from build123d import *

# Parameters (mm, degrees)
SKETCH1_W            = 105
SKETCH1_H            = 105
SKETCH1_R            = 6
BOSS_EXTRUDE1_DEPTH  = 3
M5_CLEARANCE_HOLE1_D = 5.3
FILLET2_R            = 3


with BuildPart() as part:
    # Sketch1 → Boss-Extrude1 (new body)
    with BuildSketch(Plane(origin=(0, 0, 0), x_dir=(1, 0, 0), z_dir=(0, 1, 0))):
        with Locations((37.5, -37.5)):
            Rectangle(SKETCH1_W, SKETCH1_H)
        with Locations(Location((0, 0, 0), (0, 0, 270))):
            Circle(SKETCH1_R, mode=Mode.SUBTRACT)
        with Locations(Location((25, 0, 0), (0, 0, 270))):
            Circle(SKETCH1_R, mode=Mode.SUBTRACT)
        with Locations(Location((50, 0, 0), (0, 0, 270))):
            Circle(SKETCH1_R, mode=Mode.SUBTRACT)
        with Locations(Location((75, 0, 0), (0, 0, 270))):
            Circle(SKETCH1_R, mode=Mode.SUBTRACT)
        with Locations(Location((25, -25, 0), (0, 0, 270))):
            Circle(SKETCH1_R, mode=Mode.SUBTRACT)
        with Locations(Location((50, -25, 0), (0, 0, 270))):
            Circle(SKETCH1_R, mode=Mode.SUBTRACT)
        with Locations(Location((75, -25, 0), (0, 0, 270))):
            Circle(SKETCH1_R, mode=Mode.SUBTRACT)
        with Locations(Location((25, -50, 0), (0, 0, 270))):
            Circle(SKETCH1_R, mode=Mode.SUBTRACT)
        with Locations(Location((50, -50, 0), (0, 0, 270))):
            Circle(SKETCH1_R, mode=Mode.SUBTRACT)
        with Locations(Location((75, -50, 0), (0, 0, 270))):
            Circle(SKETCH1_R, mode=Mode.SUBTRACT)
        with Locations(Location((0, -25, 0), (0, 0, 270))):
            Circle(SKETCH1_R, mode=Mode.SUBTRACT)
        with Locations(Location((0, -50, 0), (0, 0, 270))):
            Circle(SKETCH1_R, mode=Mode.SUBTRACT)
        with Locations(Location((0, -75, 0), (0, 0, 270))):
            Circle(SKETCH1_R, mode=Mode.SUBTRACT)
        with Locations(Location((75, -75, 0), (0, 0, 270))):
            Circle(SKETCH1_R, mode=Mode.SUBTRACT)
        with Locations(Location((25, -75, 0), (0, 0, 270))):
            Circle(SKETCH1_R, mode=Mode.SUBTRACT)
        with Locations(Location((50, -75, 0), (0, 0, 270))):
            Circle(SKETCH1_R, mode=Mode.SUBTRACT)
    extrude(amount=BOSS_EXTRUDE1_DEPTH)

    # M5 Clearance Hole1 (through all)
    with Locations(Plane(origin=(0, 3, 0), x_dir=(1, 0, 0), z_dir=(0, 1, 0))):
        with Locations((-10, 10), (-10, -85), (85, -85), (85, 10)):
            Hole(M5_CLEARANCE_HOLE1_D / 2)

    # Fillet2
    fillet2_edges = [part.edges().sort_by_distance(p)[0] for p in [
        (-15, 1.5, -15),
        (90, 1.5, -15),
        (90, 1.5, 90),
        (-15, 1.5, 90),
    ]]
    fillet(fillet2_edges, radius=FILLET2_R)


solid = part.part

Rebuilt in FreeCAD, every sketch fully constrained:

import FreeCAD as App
import Part
import Sketcher

V = App.Vector


def edges_at(feature, points):
    """Names of the edges that pass closest to the given points."""
    edges = feature.Shape.Edges
    near = lambda p: min(range(len(edges)), key=lambda i: edges[i].distToShape(Part.Vertex(*p))[0])
    return sorted({f"Edge{near(p) + 1}" for p in points})


def add_polygon(sketch, points):
    """Adds a closed chain of lines whose ends are joined by coincident constraints."""
    first, n = sketch.GeometryCount, len(points)
    for a, b in zip(points, points[1:] + points[:1]):
        sketch.addGeometry(Part.LineSegment(App.Vector(*a, 0), App.Vector(*b, 0)), False)
    for i in range(n):
        sketch.addConstraint(Sketcher.Constraint("Coincident", first + i, 2, first + (i + 1) % n, 1))

doc = App.newDocument("Part")
body = doc.addObject("PartDesign::Body", "Body")

# Sketch on XZ plane
sketch1 = body.newObject("Sketcher::SketchObject", "Sketch")
sketch1.AttachmentSupport = (doc.getObject("XZ_Plane"), [""])
sketch1.MapMode = "FlatFace"
add_polygon(sketch1, [(-15, -15), (-15, 90), (90, 90), (90, -15)])  # lines 0-3
sketch1.addGeometry(Part.Circle(V(0, 75, 0), V(0, 0, 1), 6), False)  # 4
sketch1.addGeometry(Part.Circle(V(25, 75, 0), V(0, 0, 1), 6), False)  # 5
sketch1.addGeometry(Part.Circle(V(0, 50, 0), V(0, 0, 1), 6), False)  # 6
sketch1.addGeometry(Part.Circle(V(25, 50, 0), V(0, 0, 1), 6), False)  # 7
sketch1.addGeometry(Part.Circle(V(50, 75, 0), V(0, 0, 1), 6), False)  # 8
sketch1.addGeometry(Part.Circle(V(75, 75, 0), V(0, 0, 1), 6), False)  # 9
sketch1.addGeometry(Part.Circle(V(50, 50, 0), V(0, 0, 1), 6), False)  # 10
sketch1.addGeometry(Part.Circle(V(75, 50, 0), V(0, 0, 1), 6), False)  # 11
sketch1.addGeometry(Part.Circle(V(0, 25, 0), V(0, 0, 1), 6), False)  # 12
sketch1.addGeometry(Part.Circle(V(25, 25, 0), V(0, 0, 1), 6), False)  # 13
sketch1.addGeometry(Part.Circle(V(0, 0, 0), V(0, 0, 1), 6), False)  # 14
sketch1.addGeometry(Part.Circle(V(25, 0, 0), V(0, 0, 1), 6), False)  # 15
sketch1.addGeometry(Part.Circle(V(50, 25, 0), V(0, 0, 1), 6), False)  # 16
sketch1.addGeometry(Part.Circle(V(75, 25, 0), V(0, 0, 1), 6), False)  # 17
sketch1.addGeometry(Part.Circle(V(50, 0, 0), V(0, 0, 1), 6), False)  # 18
sketch1.addGeometry(Part.Circle(V(75, 0, 0), V(0, 0, 1), 6), False)  # 19
sketch1.addConstraint([
    Sketcher.Constraint("Vertical", 0),
    Sketcher.Constraint("Horizontal", 1),
    Sketcher.Constraint("Vertical", 2),
    Sketcher.Constraint("Horizontal", 3),
    Sketcher.Constraint("Coincident", 14, 3, -1, 1),
    Sketcher.Constraint("Equal", 4, 5),
    Sketcher.Constraint("Equal", 5, 6),
    Sketcher.Constraint("Equal", 6, 7),
    Sketcher.Constraint("Equal", 7, 8),
    Sketcher.Constraint("Equal", 8, 9),
    Sketcher.Constraint("Equal", 9, 10),
    Sketcher.Constraint("Equal", 10, 11),
    Sketcher.Constraint("Equal", 11, 12),
    Sketcher.Constraint("Equal", 12, 13),
    Sketcher.Constraint("Equal", 13, 14),
    Sketcher.Constraint("Equal", 14, 15),
    Sketcher.Constraint("Equal", 15, 16),
    Sketcher.Constraint("Equal", 16, 17),
    Sketcher.Constraint("Equal", 17, 18),
    Sketcher.Constraint("Equal", 18, 19),
    Sketcher.Constraint("PointOnObject", 4, 3, -2),
    Sketcher.Constraint("PointOnObject", 6, 3, -2),
    Sketcher.Constraint("PointOnObject", 12, 3, -2),
    Sketcher.Constraint("PointOnObject", 15, 3, -1),
    Sketcher.Constraint("PointOnObject", 18, 3, -1),
    Sketcher.Constraint("PointOnObject", 19, 3, -1),
    Sketcher.Constraint("Horizontal", 4, 3, 5, 3),
    Sketcher.Constraint("Horizontal", 6, 3, 7, 3),
    Sketcher.Constraint("Horizontal", 5, 3, 8, 3),
    Sketcher.Constraint("Horizontal", 8, 3, 9, 3),
    Sketcher.Constraint("Horizontal", 7, 3, 10, 3),
    Sketcher.Constraint("Horizontal", 10, 3, 11, 3),
    Sketcher.Constraint("Horizontal", 12, 3, 13, 3),
    Sketcher.Constraint("Horizontal", 13, 3, 16, 3),
    Sketcher.Constraint("Horizontal", 16, 3, 17, 3),
    Sketcher.Constraint("Vertical", 5, 3, 7, 3),
    Sketcher.Constraint("Vertical", 8, 3, 10, 3),
    Sketcher.Constraint("Vertical", 9, 3, 11, 3),
    Sketcher.Constraint("Vertical", 7, 3, 13, 3),
    Sketcher.Constraint("Vertical", 13, 3, 15, 3),
    Sketcher.Constraint("Vertical", 10, 3, 16, 3),
    Sketcher.Constraint("Vertical", 11, 3, 17, 3),
    Sketcher.Constraint("Vertical", 16, 3, 18, 3),
    Sketcher.Constraint("Vertical", 17, 3, 19, 3),
    Sketcher.Constraint("Equal", 3, 0),
    Sketcher.Constraint("Diameter", 4, 12.0),
    Sketcher.Constraint("DistanceX", 1, 1, 1, 2, 105.0),
    Sketcher.Constraint("DistanceY", -1, 1, 4, 3, 75.0),
    Sketcher.Constraint("DistanceX", -1, 1, 5, 3, 25.0),
    Sketcher.Constraint("DistanceY", -1, 1, 6, 3, 50.0),
    Sketcher.Constraint("DistanceX", -1, 1, 8, 3, 50.0),
    Sketcher.Constraint("DistanceX", -1, 1, 9, 3, 75.0),
    Sketcher.Constraint("DistanceY", -1, 1, 12, 3, 25.0),
    Sketcher.Constraint("DistanceX", 0, 2, -1, 1, 15.0),
    Sketcher.Constraint("DistanceY", -1, 1, 0, 2, 90.0),
])
pad1 = body.newObject("PartDesign::Pad", "Pad")
pad1.Profile = sketch1
pad1.Length = 3
pad1.Reversed = True

# Sketch on XZ plane
sketch2 = body.newObject("Sketcher::SketchObject", "Sketch001")
sketch2.AttachmentSupport = (doc.getObject("XZ_Plane"), [""])
sketch2.MapMode = "FlatFace"
sketch2.AttachmentOffset = App.Placement(V(0, 0, -3), App.Rotation())
sketch2.addGeometry([
    Part.Circle(V(-10, -10, 0), V(0, 0, 1), 2.6),
    Part.Circle(V(-10, 85, 0), V(0, 0, 1), 2.6),
    Part.Circle(V(85, 85, 0), V(0, 0, 1), 2.6),
    Part.Circle(V(85, -10, 0), V(0, 0, 1), 2.6),
], False)
sketch2.addConstraint([
    Sketcher.Constraint("Equal", 0, 1),
    Sketcher.Constraint("Equal", 1, 2),
    Sketcher.Constraint("Equal", 2, 3),
    Sketcher.Constraint("Horizontal", 1, 3, 2, 3),
    Sketcher.Constraint("Horizontal", 0, 3, 3, 3),
    Sketcher.Constraint("Vertical", 0, 3, 1, 3),
    Sketcher.Constraint("Vertical", 2, 3, 3, 3),
    Sketcher.Constraint("Diameter", 0, 5.3),
    Sketcher.Constraint("DistanceX", 0, 3, -1, 1, 10.0),
    Sketcher.Constraint("DistanceY", 0, 3, -1, 1, 10.0),
    Sketcher.Constraint("DistanceY", -1, 1, 1, 3, 85.0),
    Sketcher.Constraint("DistanceX", -1, 1, 2, 3, 85.0),
])
doc.recompute()
hole = body.newObject("PartDesign::Hole", "Hole")
hole.Profile = sketch2
hole.ThreadType = "None"
hole.Diameter = 5.3
hole.DepthType = "ThroughAll"
hole.Reversed = True
doc.recompute()

fillet = body.newObject("PartDesign::Fillet", "Fillet")
fillet.Base = (hole, edges_at(hole, [
    (-15, 1.5, -15),
    (90, 1.5, -15),
    (90, 1.5, 90),
    (-15, 1.5, 90),
]))
fillet.Radius = 3

doc.recompute()
